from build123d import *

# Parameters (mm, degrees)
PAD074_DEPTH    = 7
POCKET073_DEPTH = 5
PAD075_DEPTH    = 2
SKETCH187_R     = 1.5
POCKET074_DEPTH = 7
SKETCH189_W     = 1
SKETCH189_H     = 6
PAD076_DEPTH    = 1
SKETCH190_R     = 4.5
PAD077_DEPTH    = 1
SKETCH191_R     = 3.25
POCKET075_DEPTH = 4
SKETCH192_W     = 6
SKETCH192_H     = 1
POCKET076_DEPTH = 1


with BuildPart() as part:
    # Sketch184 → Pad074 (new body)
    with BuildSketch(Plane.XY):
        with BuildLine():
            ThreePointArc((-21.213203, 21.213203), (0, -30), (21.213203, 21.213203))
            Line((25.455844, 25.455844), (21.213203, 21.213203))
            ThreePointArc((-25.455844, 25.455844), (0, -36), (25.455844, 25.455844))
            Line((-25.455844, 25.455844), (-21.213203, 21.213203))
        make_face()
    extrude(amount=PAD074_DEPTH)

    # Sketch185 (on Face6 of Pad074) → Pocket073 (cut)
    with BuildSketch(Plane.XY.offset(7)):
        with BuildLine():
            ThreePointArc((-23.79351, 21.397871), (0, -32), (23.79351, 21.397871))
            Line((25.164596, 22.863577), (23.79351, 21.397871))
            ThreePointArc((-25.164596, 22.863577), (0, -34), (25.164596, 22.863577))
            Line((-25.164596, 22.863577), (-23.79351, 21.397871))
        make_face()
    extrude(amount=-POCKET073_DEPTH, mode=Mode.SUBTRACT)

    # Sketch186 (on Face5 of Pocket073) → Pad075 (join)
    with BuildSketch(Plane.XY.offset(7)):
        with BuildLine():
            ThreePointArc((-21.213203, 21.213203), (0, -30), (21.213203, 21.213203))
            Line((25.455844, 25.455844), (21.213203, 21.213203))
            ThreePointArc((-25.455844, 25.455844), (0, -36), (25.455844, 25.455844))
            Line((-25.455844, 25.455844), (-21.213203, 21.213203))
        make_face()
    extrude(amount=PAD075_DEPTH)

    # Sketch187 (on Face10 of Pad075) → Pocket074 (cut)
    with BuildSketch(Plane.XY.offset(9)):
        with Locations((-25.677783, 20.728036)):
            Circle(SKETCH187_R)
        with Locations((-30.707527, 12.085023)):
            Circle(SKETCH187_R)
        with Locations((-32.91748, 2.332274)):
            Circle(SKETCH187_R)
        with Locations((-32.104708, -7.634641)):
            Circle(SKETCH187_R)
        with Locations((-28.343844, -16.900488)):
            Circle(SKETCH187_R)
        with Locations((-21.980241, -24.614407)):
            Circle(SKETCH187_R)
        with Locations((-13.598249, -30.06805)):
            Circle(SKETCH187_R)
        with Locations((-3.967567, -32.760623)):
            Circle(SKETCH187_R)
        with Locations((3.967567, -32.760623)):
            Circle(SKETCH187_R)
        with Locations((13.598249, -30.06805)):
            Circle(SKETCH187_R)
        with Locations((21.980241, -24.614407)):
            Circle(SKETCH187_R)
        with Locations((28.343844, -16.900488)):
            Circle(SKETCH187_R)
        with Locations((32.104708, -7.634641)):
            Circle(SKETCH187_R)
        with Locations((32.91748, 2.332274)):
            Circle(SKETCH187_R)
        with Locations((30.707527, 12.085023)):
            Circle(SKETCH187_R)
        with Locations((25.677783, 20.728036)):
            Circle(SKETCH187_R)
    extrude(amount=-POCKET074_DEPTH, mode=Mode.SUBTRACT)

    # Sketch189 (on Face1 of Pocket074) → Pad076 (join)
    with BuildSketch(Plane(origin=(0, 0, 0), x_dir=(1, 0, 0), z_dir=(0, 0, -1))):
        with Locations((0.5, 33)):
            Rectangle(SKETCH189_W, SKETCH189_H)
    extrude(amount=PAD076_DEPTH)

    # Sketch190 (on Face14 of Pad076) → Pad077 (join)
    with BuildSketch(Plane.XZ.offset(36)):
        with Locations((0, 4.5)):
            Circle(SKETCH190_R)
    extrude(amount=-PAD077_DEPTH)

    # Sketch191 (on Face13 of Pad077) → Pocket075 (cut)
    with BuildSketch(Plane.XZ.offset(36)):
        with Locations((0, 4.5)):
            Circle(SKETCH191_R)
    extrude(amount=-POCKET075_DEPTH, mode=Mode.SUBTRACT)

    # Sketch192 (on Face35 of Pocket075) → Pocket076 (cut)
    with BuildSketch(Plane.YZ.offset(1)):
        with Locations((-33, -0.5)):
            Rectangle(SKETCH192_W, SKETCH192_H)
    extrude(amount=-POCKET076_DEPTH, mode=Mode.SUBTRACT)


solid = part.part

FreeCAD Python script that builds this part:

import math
import FreeCAD as App
import Part
import Sketcher

V = App.Vector
Q = App.Units.Quantity


def add_polygon(sketch, points):
    """Adds a closed chain of lines whose ends are joined by coincident constraints."""
    first, n = sketch.GeometryCount, len(points)
    for a, b in zip(points, points[1:] + points[:1]):
        sketch.addGeometry(Part.LineSegment(App.Vector(*a, 0), App.Vector(*b, 0)), False)
    for i in range(n):
        sketch.addConstraint(Sketcher.Constraint("Coincident", first + i, 2, first + (i + 1) % n, 1))

doc = App.newDocument("Part")
body = doc.addObject("PartDesign::Body", "Body")

sketch1 = body.newObject("Sketcher::SketchObject", "Sketch")
sketch1.AttachmentSupport = (doc.getObject("XY_Plane"), [""])
sketch1.MapMode = "FlatFace"
sketch1.addGeometry([
    Part.ArcOfCircle(Part.Circle(V(0, 0, 0), V(0, 0, 1), 30), math.radians(135), math.radians(405)),
    Part.LineSegment(V(-21, 21, 0), V(-25, 25, 0)),
    Part.ArcOfCircle(Part.Circle(V(0, 0, 0), V(0, 0, 1), 36), math.radians(135), math.radians(405)),
    Part.LineSegment(V(25, 25, 0), V(21, 21, 0)),
], False)
sketch1.addConstraint([
    Sketcher.Constraint("Coincident", 0, 1, 1, 1),
    Sketcher.Constraint("Coincident", 1, 2, 2, 1),
    Sketcher.Constraint("Coincident", 2, 2, 3, 1),
    Sketcher.Constraint("Coincident", 3, 2, 0, 2),
    Sketcher.Constraint("Coincident", 0, 3, -1, 1),
    Sketcher.Constraint("Coincident", 2, 3, -1, 1),
    Sketcher.Constraint("Perpendicular", 1, 3),
    Sketcher.Constraint("Horizontal", 1, 2, 2, 2),
    Sketcher.Constraint("Horizontal", 0, 1, 3, 2),
    Sketcher.Constraint("Radius", 0, Q("30 mm")),
    Sketcher.Constraint("Radius", 2, Q("36 mm")),
    Sketcher.Constraint("DistanceX", 0, 1, -1, 1, Q("21.213203 mm")),
])
pad1 = body.newObject("PartDesign::Pad", "Pad")
pad1.Profile = sketch1
pad1.Length = 7

sketch2 = body.newObject("Sketcher::SketchObject", "Sketch001")
sketch2.AttachmentSupport = (doc.getObject("XY_Plane"), [""])
sketch2.MapMode = "FlatFace"
sketch2.AttachmentOffset = App.Placement(V(0, 0, 7), App.Rotation())
sketch2.addGeometry([
    Part.ArcOfCircle(Part.Circle(V(0, 0, 0), V(0, 0, 1), 32), math.radians(138), math.radians(402)),
    Part.LineSegment(V(-23.8, 21.4, 0), V(-25.2, 22.9, 0)),
    Part.ArcOfCircle(Part.Circle(V(0, 0, 0), V(0, 0, 1), 34), math.radians(138), math.radians(402)),
    Part.LineSegment(V(25.2, 22.9, 0), V(23.8, 21.4, 0)),
], False)
sketch2.addConstraint([
    Sketcher.Constraint("Coincident", 0, 1, 1, 1),
    Sketcher.Constraint("Coincident", 1, 2, 2, 1),
    Sketcher.Constraint("Coincident", 2, 2, 3, 1),
    Sketcher.Constraint("Coincident", 3, 2, 0, 2),
    Sketcher.Constraint("Coincident", 0, 3, -1, 1),
    Sketcher.Constraint("Coincident", 2, 3, -1, 1),
    Sketcher.Constraint("Horizontal", 1, 2, 2, 2),
    Sketcher.Constraint("Horizontal", 0, 1, 3, 2),
    Sketcher.Constraint("Radius", 0, Q("32 mm")),
    Sketcher.Constraint("Radius", 2, Q("34 mm")),
    Sketcher.Constraint("Distance", 1, Q("2.00703 mm")),
    Sketcher.Constraint("DistanceX", 0, 1, -1, 1, Q("23.79351 mm")),
])
pocket1 = body.newObject("PartDesign::Pocket", "Pocket")
pocket1.Profile = sketch2
pocket1.Length = 5

sketch3 = body.newObject("Sketcher::SketchObject", "Sketch002")
sketch3.AttachmentSupport = (doc.getObject("XY_Plane"), [""])
sketch3.MapMode = "FlatFace"
sketch3.AttachmentOffset = App.Placement(V(0, 0, 7), App.Rotation())
sketch3.addGeometry([
    Part.ArcOfCircle(Part.Circle(V(0, 0, 0), V(0, 0, 1), 30), math.radians(135), math.radians(405)),
    Part.LineSegment(V(-21, 21, 0), V(-25, 25, 0)),
    Part.ArcOfCircle(Part.Circle(V(0, 0, 0), V(0, 0, 1), 36), math.radians(135), math.radians(405)),
    Part.LineSegment(V(25, 25, 0), V(21, 21, 0)),
], False)
sketch3.addConstraint([
    Sketcher.Constraint("Coincident", 0, 1, 1, 1),
    Sketcher.Constraint("Coincident", 1, 2, 2, 1),
    Sketcher.Constraint("Coincident", 2, 2, 3, 1),
    Sketcher.Constraint("Coincident", 3, 2, 0, 2),
    Sketcher.Constraint("Coincident", 0, 3, -1, 1),
    Sketcher.Constraint("Coincident", 2, 3, -1, 1),
    Sketcher.Constraint("Perpendicular", 1, 3),
    Sketcher.Constraint("Horizontal", 1, 2, 2, 2),
    Sketcher.Constraint("Horizontal", 0, 1, 3, 2),
    Sketcher.Constraint("Radius", 0, Q("30 mm")),
    Sketcher.Constraint("Radius", 2, Q("36 mm")),
    Sketcher.Constraint("DistanceX", 0, 1, -1, 1, Q("21.213203 mm")),
])
pad2 = body.newObject("PartDesign::Pad", "Pad001")
pad2.Profile = sketch3
pad2.Length = 2

sketch4 = body.newObject("Sketcher::SketchObject", "Sketch003")
sketch4.AttachmentSupport = (doc.getObject("XY_Plane"), [""])
sketch4.MapMode = "FlatFace"
sketch4.AttachmentOffset = App.Placement(V(0, 0, 9), App.Rotation())
sketch4.addGeometry([
    Part.Circle(V(-25.7, 20.7, 0), V(0, 0, 1), 1.5),
    Part.Circle(V(-30.7, 12.1, 0), V(0, 0, 1), 1.5),
    Part.Circle(V(-32.9, 2.3, 0), V(0, 0, 1), 1.5),
    Part.Circle(V(-32.1, -7.6, 0), V(0, 0, 1), 1.5),
    Part.Circle(V(-28.3, -16.9, 0), V(0, 0, 1), 1.5),
    Part.Circle(V(-22, -24.6, 0), V(0, 0, 1), 1.5),
    Part.Circle(V(-13.6, -30.1, 0), V(0, 0, 1), 1.5),
    Part.Circle(V(-4, -32.8, 0), V(0, 0, 1), 1.5),
    Part.Circle(V(4, -32.8, 0), V(0, 0, 1), 1.5),
    Part.Circle(V(13.6, -30.1, 0), V(0, 0, 1), 1.5),
    Part.Circle(V(22, -24.6, 0), V(0, 0, 1), 1.5),
    Part.Circle(V(28.3, -16.9, 0), V(0, 0, 1), 1.5),
    Part.Circle(V(32.1, -7.6, 0), V(0, 0, 1), 1.5),
    Part.Circle(V(32.9, 2.3, 0), V(0, 0, 1), 1.5),
    Part.Circle(V(30.7, 12.1, 0), V(0, 0, 1), 1.5),
    Part.Circle(V(25.7, 20.7, 0), V(0, 0, 1), 1.5),
], False)
sketch4.addConstraint([
    Sketcher.Constraint("Equal", 0, 1),
    Sketcher.Constraint("Equal", 1, 2),
    Sketcher.Constraint("Equal", 2, 3),
    Sketcher.Constraint("Equal", 3, 4),
    Sketcher.Constraint("Equal", 4, 5),
    Sketcher.Constraint("Equal", 5, 6),
    Sketcher.Constraint("Equal", 6, 7),
    Sketcher.Constraint("Equal", 7, 8),
    Sketcher.Constraint("Equal", 8, 9),
    Sketcher.Constraint("Equal", 9, 10),
    Sketcher.Constraint("Equal", 10, 11),
    Sketcher.Constraint("Equal", 11, 12),
    Sketcher.Constraint("Equal", 12, 13),
    Sketcher.Constraint("Equal", 13, 14),
    Sketcher.Constraint("Equal", 14, 15),
    Sketcher.Constraint("Symmetric", 7, 3, 8, 3, -2),
    Sketcher.Constraint("Symmetric", 6, 3, 9, 3, -2),
    Sketcher.Constraint("Symmetric", 5, 3, 10, 3, -2),
    Sketcher.Constraint("Symmetric", 4, 3, 11, 3, -2),
    Sketcher.Constraint("Symmetric", 3, 3, 12, 3, -2),
    Sketcher.Constraint("Symmetric", 2, 3, 13, 3, -2),
    Sketcher.Constraint("Symmetric", 1, 3, 14, 3, -2),
    Sketcher.Constraint("Symmetric", 0, 3, 15, 3, -2),
    Sketcher.Constraint("Diameter", 0, Q("3 mm")),
    Sketcher.Constraint("DistanceX", 2, 3, -1, 1, Q("32.91748 mm")),
    Sketcher.Constraint("DistanceX", 3, 3, -1, 1, Q("32.104708 mm")),
    Sketcher.Constraint("DistanceY", 3, 3, -1, 1, Q("7.634641 mm")),
    Sketcher.Constraint("DistanceX", 5, 3, -1, 1, Q("21.980241 mm")),
    Sketcher.Constraint("DistanceX", 6, 3, -1, 1, Q("13.598249 mm")),
    Sketcher.Constraint("DistanceY", 6, 3, -1, 1, Q("30.06805 mm")),
    Sketcher.Constraint("DistanceY", 2, 3, 1, 3, Q("9.752749 mm")),
    Sketcher.Constraint("DistanceY", 2, 3, 0, 3, Q("18.395762 mm")),
    Sketcher.Constraint("DistanceX", 3, 3, 1, 3, Q("1.397181 mm")),
    Sketcher.Constraint("DistanceY", 4, 3, 1, 3, Q("28.985511 mm")),
    Sketcher.Constraint("DistanceX", 4, 3, 0, 3, Q("2.666061 mm")),
    Sketcher.Constraint("DistanceY", 5, 3, 4, 3, Q("7.713919 mm")),
    Sketcher.Constraint("DistanceX", 3, 3, 7, 3, Q("28.137141 mm")),
    Sketcher.Constraint("DistanceX", 4, 3, 8, 3, Q("32.311411 mm")),
    Sketcher.Constraint("DistanceY", -1, 1, 0, 3, Q("20.728036 mm")),
    Sketcher.Constraint("DistanceY", 7, 3, -1, 1, Q("32.760623 mm")),
])
pocket2 = body.newObject("PartDesign::Pocket", "Pocket001")
pocket2.Profile = sketch4
pocket2.Length = 7

sketch5 = body.newObject("Sketcher::SketchObject", "Sketch004")
sketch5.AttachmentSupport = (doc.getObject("XY_Plane"), [""])
sketch5.MapMode = "FlatFace"
add_polygon(sketch5, [(0, -36), (0, -30), (1, -30), (1, -36)])
sketch5.addConstraint([
    Sketcher.Constraint("Vertical", 0),
    Sketcher.Constraint("Horizontal", 1),
    Sketcher.Constraint("Vertical", 2),
    Sketcher.Constraint("Horizontal", 3),
    Sketcher.Constraint("PointOnObject", 0, 2, -2),
    Sketcher.Constraint("DistanceX", 1, 1, 1, 2, Q("1 mm")),
    Sketcher.Constraint("DistanceY", 0, 1, 0, 2, Q("6 mm")),
    Sketcher.Constraint("DistanceY", 0, 2, -1, 1, Q("30 mm")),
])
pad3 = body.newObject("PartDesign::Pad", "Pad002")
pad3.Profile = sketch5
pad3.Length = 1
pad3.Reversed = True

sketch6 = body.newObject("Sketcher::SketchObject", "Sketch005")
sketch6.AttachmentSupport = (doc.getObject("XZ_Plane"), [""])
sketch6.MapMode = "FlatFace"
sketch6.AttachmentOffset = App.Placement(V(0, 0, 36), App.Rotation())
sketch6.addGeometry(Part.Circle(V(0, 4.5, 0), V(0, 0, 1), 4.5), False)
sketch6.addConstraint([
    Sketcher.Constraint("PointOnObject", 0, 3, -2),
    Sketcher.Constraint("Diameter", 0, Q("9 mm")),
    Sketcher.Constraint("DistanceY", -1, 1, 0, 3, Q("4.5 mm")),
])
pad4 = body.newObject("PartDesign::Pad", "Pad003")
pad4.Profile = sketch6
pad4.Length = 1
pad4.Reversed = True

sketch7 = body.newObject("Sketcher::SketchObject", "Sketch006")
sketch7.AttachmentSupport = (doc.getObject("XZ_Plane"), [""])
sketch7.MapMode = "FlatFace"
sketch7.AttachmentOffset = App.Placement(V(0, 0, 36), App.Rotation())
sketch7.addGeometry(Part.Circle(V(0, 4.5, 0), V(0, 0, 1), 3.2), False)
sketch7.addConstraint([
    Sketcher.Constraint("PointOnObject", 0, 3, -2),
    Sketcher.Constraint("Diameter", 0, Q("6.5 mm")),
    Sketcher.Constraint("DistanceY", -1, 1, 0, 3, Q("4.5 mm")),
])
pocket3 = body.newObject("PartDesign::Pocket", "Pocket002")
pocket3.Profile = sketch7
pocket3.Length = 4

sketch8 = body.newObject("Sketcher::SketchObject", "Sketch007")
sketch8.AttachmentSupport = (doc.getObject("YZ_Plane"), [""])
sketch8.MapMode = "FlatFace"
sketch8.AttachmentOffset = App.Placement(V(0, 0, 1), App.Rotation())
add_polygon(sketch8, [(-36, 0), (-36, -1), (-30, -1), (-30, 0)])
sketch8.addConstraint([
    Sketcher.Constraint("Vertical", 0),
    Sketcher.Constraint("Horizontal", 1),
    Sketcher.Constraint("Vertical", 2),
    Sketcher.Constraint("Horizontal", 3),
    Sketcher.Constraint("PointOnObject", 2, 2, -1),
    Sketcher.Constraint("DistanceX", 1, 1, 1, 2, Q("6 mm")),
    Sketcher.Constraint("DistanceY", 0, 2, 0, 1, Q("1 mm")),
    Sketcher.Constraint("DistanceX", 0, 2, -1, 1, Q("36 mm")),
])
pocket4 = body.newObject("PartDesign::Pocket", "Pocket003")
pocket4.Profile = sketch8
pocket4.Length = 1

doc.recompute()
